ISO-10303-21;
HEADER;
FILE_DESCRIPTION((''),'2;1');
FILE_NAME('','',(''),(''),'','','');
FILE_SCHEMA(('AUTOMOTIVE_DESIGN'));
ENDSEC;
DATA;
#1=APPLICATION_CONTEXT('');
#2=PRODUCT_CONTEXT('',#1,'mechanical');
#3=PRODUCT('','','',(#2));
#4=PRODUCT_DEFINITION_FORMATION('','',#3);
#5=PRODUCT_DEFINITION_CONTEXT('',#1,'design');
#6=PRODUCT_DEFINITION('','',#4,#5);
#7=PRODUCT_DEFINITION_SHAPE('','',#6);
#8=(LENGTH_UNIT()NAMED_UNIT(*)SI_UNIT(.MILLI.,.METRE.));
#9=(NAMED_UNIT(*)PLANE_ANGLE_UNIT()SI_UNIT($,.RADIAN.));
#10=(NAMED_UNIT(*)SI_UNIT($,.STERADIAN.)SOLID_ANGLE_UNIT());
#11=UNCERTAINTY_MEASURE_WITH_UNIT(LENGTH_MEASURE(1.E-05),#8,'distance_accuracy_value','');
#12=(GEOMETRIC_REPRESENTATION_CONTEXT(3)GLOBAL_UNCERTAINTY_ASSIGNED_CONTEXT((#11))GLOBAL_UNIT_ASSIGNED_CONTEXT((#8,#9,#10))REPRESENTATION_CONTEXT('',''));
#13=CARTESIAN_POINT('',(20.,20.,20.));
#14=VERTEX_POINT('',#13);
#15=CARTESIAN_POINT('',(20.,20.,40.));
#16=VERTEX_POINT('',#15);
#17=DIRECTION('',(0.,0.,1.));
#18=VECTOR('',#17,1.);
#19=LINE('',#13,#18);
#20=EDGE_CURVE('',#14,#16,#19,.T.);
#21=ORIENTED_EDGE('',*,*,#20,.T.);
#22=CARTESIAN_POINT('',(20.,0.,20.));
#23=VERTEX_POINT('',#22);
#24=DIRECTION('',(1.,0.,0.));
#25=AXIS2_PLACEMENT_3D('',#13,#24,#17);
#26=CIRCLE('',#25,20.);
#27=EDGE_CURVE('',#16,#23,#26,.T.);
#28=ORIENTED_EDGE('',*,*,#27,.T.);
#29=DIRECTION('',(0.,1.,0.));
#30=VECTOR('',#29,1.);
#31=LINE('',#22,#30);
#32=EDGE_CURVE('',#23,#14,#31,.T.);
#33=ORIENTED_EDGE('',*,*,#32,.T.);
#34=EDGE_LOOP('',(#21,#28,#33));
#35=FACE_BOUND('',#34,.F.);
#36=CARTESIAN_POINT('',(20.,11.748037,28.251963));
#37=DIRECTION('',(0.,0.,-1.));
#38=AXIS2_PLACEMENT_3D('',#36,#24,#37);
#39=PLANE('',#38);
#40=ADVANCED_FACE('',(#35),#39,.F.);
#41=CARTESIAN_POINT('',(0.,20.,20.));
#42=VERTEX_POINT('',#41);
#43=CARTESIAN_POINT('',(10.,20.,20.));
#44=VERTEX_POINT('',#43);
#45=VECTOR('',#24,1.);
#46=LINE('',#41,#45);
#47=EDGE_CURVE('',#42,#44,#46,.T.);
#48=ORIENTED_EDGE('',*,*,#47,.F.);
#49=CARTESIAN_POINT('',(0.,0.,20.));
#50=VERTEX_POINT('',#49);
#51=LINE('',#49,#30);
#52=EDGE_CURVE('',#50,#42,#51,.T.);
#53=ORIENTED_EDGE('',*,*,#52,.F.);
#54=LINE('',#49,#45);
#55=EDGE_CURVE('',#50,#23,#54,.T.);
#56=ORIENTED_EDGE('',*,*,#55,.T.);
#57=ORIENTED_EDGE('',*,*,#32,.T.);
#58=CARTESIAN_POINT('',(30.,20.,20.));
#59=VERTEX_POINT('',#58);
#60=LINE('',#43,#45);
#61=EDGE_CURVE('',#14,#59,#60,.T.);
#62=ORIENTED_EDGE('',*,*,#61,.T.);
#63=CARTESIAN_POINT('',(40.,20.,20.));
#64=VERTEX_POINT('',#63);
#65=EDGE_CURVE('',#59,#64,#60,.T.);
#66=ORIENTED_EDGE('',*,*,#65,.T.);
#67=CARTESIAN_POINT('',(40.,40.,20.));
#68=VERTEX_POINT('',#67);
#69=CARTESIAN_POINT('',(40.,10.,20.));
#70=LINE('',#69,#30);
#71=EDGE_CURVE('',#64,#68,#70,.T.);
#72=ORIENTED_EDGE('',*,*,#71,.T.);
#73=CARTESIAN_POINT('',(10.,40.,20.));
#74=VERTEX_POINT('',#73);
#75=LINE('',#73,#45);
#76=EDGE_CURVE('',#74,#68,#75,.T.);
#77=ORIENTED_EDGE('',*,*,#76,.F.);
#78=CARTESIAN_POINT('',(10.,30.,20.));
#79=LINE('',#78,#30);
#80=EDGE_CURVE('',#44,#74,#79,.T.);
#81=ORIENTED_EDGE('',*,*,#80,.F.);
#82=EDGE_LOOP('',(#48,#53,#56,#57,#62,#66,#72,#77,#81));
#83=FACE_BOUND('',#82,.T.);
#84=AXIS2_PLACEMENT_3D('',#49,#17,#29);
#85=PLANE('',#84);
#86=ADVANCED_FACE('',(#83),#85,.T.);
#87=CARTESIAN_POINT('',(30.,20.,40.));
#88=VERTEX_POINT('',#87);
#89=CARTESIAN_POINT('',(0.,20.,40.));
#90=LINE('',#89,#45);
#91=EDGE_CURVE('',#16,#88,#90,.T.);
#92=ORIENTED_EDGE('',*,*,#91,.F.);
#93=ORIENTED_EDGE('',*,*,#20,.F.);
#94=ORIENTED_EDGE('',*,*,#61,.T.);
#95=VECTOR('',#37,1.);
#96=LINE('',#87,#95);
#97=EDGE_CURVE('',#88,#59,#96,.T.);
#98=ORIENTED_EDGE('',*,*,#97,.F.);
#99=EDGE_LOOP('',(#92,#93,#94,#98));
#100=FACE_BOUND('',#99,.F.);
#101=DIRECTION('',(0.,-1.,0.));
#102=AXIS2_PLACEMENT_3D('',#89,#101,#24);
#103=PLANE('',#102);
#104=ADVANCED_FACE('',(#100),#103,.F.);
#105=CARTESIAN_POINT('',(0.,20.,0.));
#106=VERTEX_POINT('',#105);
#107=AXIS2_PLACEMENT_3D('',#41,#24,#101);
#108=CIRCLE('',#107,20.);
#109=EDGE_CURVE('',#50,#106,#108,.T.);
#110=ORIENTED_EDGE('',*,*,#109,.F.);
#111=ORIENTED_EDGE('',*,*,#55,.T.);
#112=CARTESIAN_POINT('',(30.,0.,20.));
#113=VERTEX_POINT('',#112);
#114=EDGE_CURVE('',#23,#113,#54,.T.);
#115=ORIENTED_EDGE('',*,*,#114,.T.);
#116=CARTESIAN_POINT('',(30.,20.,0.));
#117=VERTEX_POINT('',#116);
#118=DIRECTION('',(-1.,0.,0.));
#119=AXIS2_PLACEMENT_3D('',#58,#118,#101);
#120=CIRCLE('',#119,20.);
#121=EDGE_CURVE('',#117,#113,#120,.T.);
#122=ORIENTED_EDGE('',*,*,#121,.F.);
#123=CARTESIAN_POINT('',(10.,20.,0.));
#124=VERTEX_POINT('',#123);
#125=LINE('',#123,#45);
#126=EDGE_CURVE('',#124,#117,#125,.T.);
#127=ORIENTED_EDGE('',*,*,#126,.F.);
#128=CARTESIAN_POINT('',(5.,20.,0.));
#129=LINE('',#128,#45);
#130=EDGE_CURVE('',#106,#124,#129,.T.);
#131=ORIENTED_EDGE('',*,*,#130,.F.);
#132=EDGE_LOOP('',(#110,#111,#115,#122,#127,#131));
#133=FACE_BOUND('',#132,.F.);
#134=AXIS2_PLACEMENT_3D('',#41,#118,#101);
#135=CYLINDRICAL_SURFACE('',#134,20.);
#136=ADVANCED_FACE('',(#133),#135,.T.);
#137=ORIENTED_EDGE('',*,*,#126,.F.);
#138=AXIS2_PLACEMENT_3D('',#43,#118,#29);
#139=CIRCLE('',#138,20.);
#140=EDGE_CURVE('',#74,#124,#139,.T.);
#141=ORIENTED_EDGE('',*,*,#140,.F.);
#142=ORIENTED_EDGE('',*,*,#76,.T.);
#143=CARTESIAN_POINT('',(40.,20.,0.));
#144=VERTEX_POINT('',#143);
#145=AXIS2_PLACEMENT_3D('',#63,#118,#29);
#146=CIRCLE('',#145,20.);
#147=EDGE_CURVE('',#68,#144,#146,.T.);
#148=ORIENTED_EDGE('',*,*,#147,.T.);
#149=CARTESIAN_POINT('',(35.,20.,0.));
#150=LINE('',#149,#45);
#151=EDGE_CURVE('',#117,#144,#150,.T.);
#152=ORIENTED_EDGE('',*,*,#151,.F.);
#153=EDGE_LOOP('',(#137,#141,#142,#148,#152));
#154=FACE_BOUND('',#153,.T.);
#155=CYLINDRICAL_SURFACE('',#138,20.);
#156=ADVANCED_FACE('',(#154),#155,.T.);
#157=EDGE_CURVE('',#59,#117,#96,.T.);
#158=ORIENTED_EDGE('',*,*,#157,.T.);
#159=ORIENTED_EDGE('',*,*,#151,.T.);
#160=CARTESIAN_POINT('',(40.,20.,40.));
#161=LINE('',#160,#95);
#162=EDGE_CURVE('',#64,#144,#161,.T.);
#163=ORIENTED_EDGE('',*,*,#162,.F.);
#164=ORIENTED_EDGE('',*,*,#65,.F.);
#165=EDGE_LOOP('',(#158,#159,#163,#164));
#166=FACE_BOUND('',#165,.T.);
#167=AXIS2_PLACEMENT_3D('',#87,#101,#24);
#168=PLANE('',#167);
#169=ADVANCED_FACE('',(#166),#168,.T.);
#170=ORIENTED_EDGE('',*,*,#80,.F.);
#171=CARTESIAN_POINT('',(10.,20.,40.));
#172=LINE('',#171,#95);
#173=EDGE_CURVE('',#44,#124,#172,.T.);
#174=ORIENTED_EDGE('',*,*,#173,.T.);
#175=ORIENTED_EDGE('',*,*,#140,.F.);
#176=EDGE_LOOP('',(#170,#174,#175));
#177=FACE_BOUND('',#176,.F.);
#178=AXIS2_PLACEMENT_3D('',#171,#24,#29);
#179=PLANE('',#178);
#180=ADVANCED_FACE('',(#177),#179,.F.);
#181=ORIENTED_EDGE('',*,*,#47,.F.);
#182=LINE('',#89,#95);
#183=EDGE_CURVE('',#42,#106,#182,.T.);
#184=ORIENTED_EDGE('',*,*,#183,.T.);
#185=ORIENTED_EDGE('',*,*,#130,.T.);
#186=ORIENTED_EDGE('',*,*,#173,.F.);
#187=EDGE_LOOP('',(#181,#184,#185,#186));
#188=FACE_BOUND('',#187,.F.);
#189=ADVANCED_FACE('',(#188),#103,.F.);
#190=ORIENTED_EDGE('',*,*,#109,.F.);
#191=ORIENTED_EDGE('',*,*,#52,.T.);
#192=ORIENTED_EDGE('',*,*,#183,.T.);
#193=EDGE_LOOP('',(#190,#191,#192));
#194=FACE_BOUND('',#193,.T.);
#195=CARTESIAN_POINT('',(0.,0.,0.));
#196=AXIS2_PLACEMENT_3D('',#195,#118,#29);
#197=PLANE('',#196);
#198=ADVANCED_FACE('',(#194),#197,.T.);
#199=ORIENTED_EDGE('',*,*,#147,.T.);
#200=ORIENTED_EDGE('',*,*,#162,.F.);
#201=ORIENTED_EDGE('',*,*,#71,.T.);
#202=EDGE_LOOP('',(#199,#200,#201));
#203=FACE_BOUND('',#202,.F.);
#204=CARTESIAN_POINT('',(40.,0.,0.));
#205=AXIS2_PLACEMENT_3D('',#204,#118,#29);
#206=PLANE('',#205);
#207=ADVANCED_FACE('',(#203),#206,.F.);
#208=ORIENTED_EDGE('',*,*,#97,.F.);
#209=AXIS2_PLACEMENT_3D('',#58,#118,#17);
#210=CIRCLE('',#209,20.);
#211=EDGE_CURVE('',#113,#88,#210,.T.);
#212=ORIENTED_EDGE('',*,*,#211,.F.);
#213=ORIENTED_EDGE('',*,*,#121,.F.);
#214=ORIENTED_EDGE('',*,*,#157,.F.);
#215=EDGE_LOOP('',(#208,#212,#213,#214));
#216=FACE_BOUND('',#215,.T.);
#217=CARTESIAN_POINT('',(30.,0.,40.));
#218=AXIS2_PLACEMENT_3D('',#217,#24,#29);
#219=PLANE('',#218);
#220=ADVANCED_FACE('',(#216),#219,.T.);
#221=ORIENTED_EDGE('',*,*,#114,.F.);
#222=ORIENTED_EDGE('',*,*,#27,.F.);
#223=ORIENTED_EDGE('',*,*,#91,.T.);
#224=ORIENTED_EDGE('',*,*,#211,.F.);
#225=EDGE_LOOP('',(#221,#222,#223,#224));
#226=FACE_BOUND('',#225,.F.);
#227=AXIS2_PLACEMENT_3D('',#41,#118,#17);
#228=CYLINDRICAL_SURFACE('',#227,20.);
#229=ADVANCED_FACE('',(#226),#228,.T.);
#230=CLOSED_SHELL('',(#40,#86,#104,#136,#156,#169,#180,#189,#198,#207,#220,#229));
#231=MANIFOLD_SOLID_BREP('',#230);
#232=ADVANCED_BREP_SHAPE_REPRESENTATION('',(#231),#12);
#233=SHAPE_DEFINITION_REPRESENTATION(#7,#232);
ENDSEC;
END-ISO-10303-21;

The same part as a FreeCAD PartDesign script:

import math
import FreeCAD as App
import Part
import Sketcher


def add_polygon(sketch, points):
    """Adds a closed chain of lines whose ends are joined by coincident constraints."""
    first, n = sketch.GeometryCount, len(points)
    for a, b in zip(points, points[1:] + points[:1]):
        sketch.addGeometry(Part.LineSegment(App.Vector(*a, 0), App.Vector(*b, 0)), False)
    for i in range(n):
        sketch.addConstraint(Sketcher.Constraint("Coincident", first + i, 2, first + (i + 1) % n, 1))

doc = App.newDocument("Part")
body = doc.addObject("PartDesign::Body", "Body")

# Sketch on XY plane
sketch1 = doc.addObject("Sketcher::SketchObject", "Sketch")
body.addObject(sketch1)
sketch1.AttachmentSupport = (doc.XY_Plane, [""])
sketch1.MapMode = "FlatFace"
add_polygon(sketch1, [(0, 40), (0, 0), (40, 0), (40, 40)])  # lines 0-3
sketch1.addConstraint([
    Sketcher.Constraint("Vertical", 0),
    Sketcher.Constraint("Horizontal", 1),
    Sketcher.Constraint("Vertical", 2),
    Sketcher.Constraint("Horizontal", 3),
    Sketcher.Constraint("Coincident", 0, 2, -1, 1),
    Sketcher.Constraint("Equal", 3, 0),
    Sketcher.Constraint("DistanceX", 1, 1, 1, 2, 40.0),
])
pad1 = doc.addObject("PartDesign::Pad", "Pad")
body.addObject(pad1)
pad1.Profile = sketch1
pad1.Length = 40

# Sketch on XY plane
sketch2 = doc.addObject("Sketcher::SketchObject", "Sketch001")
body.addObject(sketch2)
sketch2.AttachmentSupport = (doc.XY_Plane, [""])
sketch2.MapMode = "FlatFace"
sketch2.AttachmentOffset = App.Placement(App.Vector(0, 0, 40), App.Rotation())
add_polygon(sketch2, [(0, 40), (0, 20), (10, 20), (10, 40)])  # lines 0-3
add_polygon(sketch2, [(30, 20), (30, 0), (40, 0), (40, 20)])  # lines 4-7
sketch2.addConstraint([
    Sketcher.Constraint("Vertical", 0),
    Sketcher.Constraint("Horizontal", 1),
    Sketcher.Constraint("Vertical", 2),
    Sketcher.Constraint("Horizontal", 3),
    Sketcher.Constraint("Vertical", 4),
    Sketcher.Constraint("Horizontal", 5),
    Sketcher.Constraint("Vertical", 6),
    Sketcher.Constraint("Horizontal", 7),
    Sketcher.Constraint("PointOnObject", 0, 2, -2),
    Sketcher.Constraint("PointOnObject", 4, 2, -1),
    Sketcher.Constraint("Horizontal", 1, 2, 6, 2),
    Sketcher.Constraint("Equal", 3, 5),
    Sketcher.Constraint("Equal", 2, 4),
    Sketcher.Constraint("DistanceX", 1, 1, 1, 2, 10.0),
    Sketcher.Constraint("DistanceY", 0, 2, 0, 1, 20.0),
    Sketcher.Constraint("DistanceX", -1, 1, 4, 2, 30.0),
])
pocket1 = doc.addObject("PartDesign::Pocket", "Pocket")
body.addObject(pocket1)
pocket1.Profile = sketch2
pocket1.Length = 40

# Sketch on YZ plane
sketch3 = doc.addObject("Sketcher::SketchObject", "Sketch002")
body.addObject(sketch3)
sketch3.AttachmentSupport = (doc.YZ_Plane, [""])
sketch3.MapMode = "FlatFace"
sketch3.AttachmentOffset = App.Placement(App.Vector(0, 0, 10), App.Rotation())
add_polygon(sketch3, [(40, 20), (20, 20), (20, 40), (40, 40)])  # lines 0-3
sketch3.addConstraint([
    Sketcher.Constraint("Horizontal", 0),
    Sketcher.Constraint("Vertical", 1),
    Sketcher.Constraint("Horizontal", 2),
    Sketcher.Constraint("Vertical", 3),
    Sketcher.Constraint("Equal", 2, 1),
    Sketcher.Constraint("DistanceX", 0, 2, 0, 1, 20.0),
    Sketcher.Constraint("DistanceX", -1, 1, 0, 2, 20.0),
    Sketcher.Constraint("DistanceY", -1, 1, 0, 2, 20.0),
])
pocket2 = doc.addObject("PartDesign::Pocket", "Pocket001")
body.addObject(pocket2)
pocket2.Profile = sketch3
pocket2.Length = 40
pocket2.Reversed = True

# Sketch on YZ plane
sketch4 = doc.addObject("Sketcher::SketchObject", "Sketch003")
body.addObject(sketch4)
sketch4.AttachmentSupport = (doc.YZ_Plane, [""])
sketch4.MapMode = "FlatFace"
sketch4.AttachmentOffset = App.Placement(App.Vector(0, 0, 10), App.Rotation())
sketch4.addGeometry([
    Part.LineSegment(App.Vector(40, 0, 0), App.Vector(20, 0, 0)),
    Part.ArcOfCircle(Part.Circle(App.Vector(20, 20, 0), App.Vector(0, 0, 1), 20), math.radians(-90), math.radians(0)),
    Part.LineSegment(App.Vector(40, 20, 0), App.Vector(40, 0, 0)),
], False)
sketch4.addConstraint([
    Sketcher.Constraint("Tangent", 0, 2, 1, 1),
    Sketcher.Constraint("Tangent", 1, 2, 2, 1),
    Sketcher.Constraint("Coincident", 2, 2, 0, 1),
    Sketcher.Constraint("Horizontal", 0),
    Sketcher.Constraint("Vertical", 2),
    Sketcher.Constraint("PointOnObject", 0, 2, -1),
    Sketcher.Constraint("Radius", 1, 20.0),
    Sketcher.Constraint("DistanceX", -1, 1, 1, 3, 20.0),
])
pocket3 = doc.addObject("PartDesign::Pocket", "Pocket002")
body.addObject(pocket3)
pocket3.Profile = sketch4
pocket3.Length = 40
pocket3.Reversed = True

# Sketch on YZ plane
sketch5 = doc.addObject("Sketcher::SketchObject", "Sketch004")
body.addObject(sketch5)
sketch5.AttachmentSupport = (doc.YZ_Plane, [""])
sketch5.MapMode = "FlatFace"
sketch5.addGeometry([
    Part.ArcOfCircle(Part.Circle(App.Vector(20, 20, 0), App.Vector(0, 0, 1), 20), math.radians(180), math.radians(270)),  # 0
    Part.LineSegment(App.Vector(20, 0, 0), App.Vector(0, 0, 0)),  # 1
    Part.LineSegment(App.Vector(0, 0, 0), App.Vector(0, 20, 0)),  # 2
    Part.ArcOfCircle(Part.Circle(App.Vector(20, 20, 0), App.Vector(0, 0, 1), 20), math.radians(90), math.radians(180)),  # 3
    Part.LineSegment(App.Vector(0, 20, 0), App.Vector(0, 40, 0)),  # 4
    Part.LineSegment(App.Vector(0, 40, 0), App.Vector(20, 40, 0)),  # 5
], False)
sketch5.addConstraint([
    Sketcher.Constraint("Tangent", 0, 2, 1, 1),
    Sketcher.Constraint("Coincident", 1, 2, 2, 1),
    Sketcher.Constraint("Tangent", 2, 2, 0, 1),
    Sketcher.Constraint("Tangent", 3, 2, 4, 1),
    Sketcher.Constraint("Coincident", 4, 2, 5, 1),
    Sketcher.Constraint("Tangent", 5, 2, 3, 1),
    Sketcher.Constraint("Horizontal", 1),
    Sketcher.Constraint("Vertical", 2),
    Sketcher.Constraint("Vertical", 4),
    Sketcher.Constraint("Horizontal", 5),
    Sketcher.Constraint("Coincident", 1, 2, -1, 1),
    Sketcher.Constraint("Coincident", 3, 3, 0, 3),
    Sketcher.Constraint("Equal", 0, 3),
    Sketcher.Constraint("Radius", 0, 20.0),
])
pocket4 = doc.addObject("PartDesign::Pocket", "Pocket003")
body.addObject(pocket4)
pocket4.Profile = sketch5
pocket4.Length = 40
pocket4.Reversed = True

# Sketch on YZ plane
sketch6 = doc.addObject("Sketcher::SketchObject", "Sketch005")
body.addObject(sketch6)
sketch6.AttachmentSupport = (doc.YZ_Plane, [""])
sketch6.MapMode = "FlatFace"
sketch6.addGeometry([
    Part.LineSegment(App.Vector(20, 20, 0), App.Vector(0, 20, 0)),
    Part.ArcOfCircle(Part.Circle(App.Vector(20, 20, 0), App.Vector(0, 0, 1), 20), math.radians(90), math.radians(180)),
    Part.LineSegment(App.Vector(20, 40, 0), App.Vector(20, 20, 0)),
], False)
sketch6.addConstraint([
    Sketcher.Constraint("Coincident", 0, 2, 1, 2),
    Sketcher.Constraint("Coincident", 1, 1, 2, 1),
    Sketcher.Constraint("Coincident", 2, 2, 0, 1),
    Sketcher.Constraint("Horizontal", 0),
    Sketcher.Constraint("Vertical", 2),
    Sketcher.Constraint("Coincident", 2, 2, 1, 3),
    Sketcher.Constraint("PointOnObject", 0, 2, -2),
    Sketcher.Constraint("Radius", 1, 20.0),
    Sketcher.Constraint("DistanceY", -1, 1, 1, 3, 20.0),
])
pocket5 = doc.addObject("PartDesign::Pocket", "Pocket004")
body.addObject(pocket5)
pocket5.Profile = sketch6
pocket5.Length = 20
pocket5.Reversed = True

doc.recompute()
